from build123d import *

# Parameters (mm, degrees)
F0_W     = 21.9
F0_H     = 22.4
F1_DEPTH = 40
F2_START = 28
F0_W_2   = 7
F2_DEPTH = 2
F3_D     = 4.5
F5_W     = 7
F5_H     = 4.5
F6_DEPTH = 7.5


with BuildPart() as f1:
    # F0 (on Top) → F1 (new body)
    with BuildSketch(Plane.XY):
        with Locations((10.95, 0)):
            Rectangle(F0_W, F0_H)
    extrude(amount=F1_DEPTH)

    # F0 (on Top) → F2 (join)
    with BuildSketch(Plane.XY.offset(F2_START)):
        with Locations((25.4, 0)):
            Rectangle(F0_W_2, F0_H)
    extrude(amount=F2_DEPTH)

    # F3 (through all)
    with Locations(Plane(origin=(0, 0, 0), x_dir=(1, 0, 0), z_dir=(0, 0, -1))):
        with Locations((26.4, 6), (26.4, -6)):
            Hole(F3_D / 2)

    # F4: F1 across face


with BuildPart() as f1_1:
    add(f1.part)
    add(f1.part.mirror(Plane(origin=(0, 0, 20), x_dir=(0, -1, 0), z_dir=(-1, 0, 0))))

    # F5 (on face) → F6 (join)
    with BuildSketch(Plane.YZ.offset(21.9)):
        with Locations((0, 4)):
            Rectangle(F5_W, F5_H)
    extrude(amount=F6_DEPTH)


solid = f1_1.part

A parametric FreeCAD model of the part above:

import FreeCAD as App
import Part
import Sketcher

V = App.Vector
Q = App.Units.Quantity


def add_polygon(sketch, points):
    """Adds a closed chain of lines whose ends are joined by coincident constraints."""
    first, n = sketch.GeometryCount, len(points)
    for a, b in zip(points, points[1:] + points[:1]):
        sketch.addGeometry(Part.LineSegment(App.Vector(*a, 0), App.Vector(*b, 0)), False)
    for i in range(n):
        sketch.addConstraint(Sketcher.Constraint("Coincident", first + i, 2, first + (i + 1) % n, 1))

doc = App.newDocument("Part")
params = doc.addObject("Spreadsheet::Sheet", "Params")
for row, (alias, value) in enumerate([
    ("sketch1_width", "21.9 mm"),
    ("sketch1_height", "22.4 mm"),
    ("pad1_length", "40 mm"),
    ("sketch2_width", "7 mm"),
    ("sketch2_height", "22.4 mm"),
    ("pad2_length", "2 mm"),
    ("sketch3_diameter", "4.5 mm"),
    ("hole_diameter", "4.5 mm"),
    ("sketch4_width", "7 mm"),
    ("sketch4_height", "4.5 mm"),
    ("pad3_length", "7.5 mm"),
], start=1):
    params.set(f"A{row}", alias)
    params.set(f"B{row}", "=" + value)
    params.setAlias(f"B{row}", alias)

body = doc.addObject("PartDesign::Body", "Body")

# Sketch on XY plane
sketch1 = doc.addObject("Sketcher::SketchObject", "Sketch")
body.addObject(sketch1)
sketch1.AttachmentSupport = (doc.XY_Plane, [""])
sketch1.MapMode = "FlatFace"
add_polygon(sketch1, [(0, 11), (0, -11), (22, -11), (22, 11)])  # lines 0-3
sketch1.addConstraint(Sketcher.Constraint("Vertical", 0))
sketch1.addConstraint(Sketcher.Constraint("Horizontal", 1))
sketch1.addConstraint(Sketcher.Constraint("Vertical", 2))
sketch1.addConstraint(Sketcher.Constraint("Horizontal", 3))
sketch1.addConstraint(Sketcher.Constraint("Symmetric", 0, 2, 3, 2, -1, 1))
sketch1.addConstraint(Sketcher.Constraint("DistanceX", 1, 1, 1, 2, Q("21.9 mm")))
sketch1.addConstraint(Sketcher.Constraint("DistanceY", 0, 2, 0, 1, Q("22.4 mm")))
sketch1.setExpression("Constraints[9]", "Params.sketch1_width")
sketch1.setExpression("Constraints[10]", "Params.sketch1_height")
pad1 = doc.addObject("PartDesign::Pad", "Pad")
body.addObject(pad1)
pad1.Profile = sketch1
pad1.setExpression("Length", "Params.pad1_length")

# Sketch on XY plane
sketch2 = doc.addObject("Sketcher::SketchObject", "Sketch001")
body.addObject(sketch2)
sketch2.AttachmentSupport = (doc.XY_Plane, [""])
sketch2.MapMode = "FlatFace"
sketch2.AttachmentOffset = App.Placement(V(0, 0, 28), App.Rotation())
add_polygon(sketch2, [(22, 11), (22, -11), (29, -11), (29, 11)])  # lines 0-3
sketch2.addConstraint(Sketcher.Constraint("Vertical", 0))
sketch2.addConstraint(Sketcher.Constraint("Horizontal", 1))
sketch2.addConstraint(Sketcher.Constraint("Vertical", 2))
sketch2.addConstraint(Sketcher.Constraint("Horizontal", 3))
sketch2.addConstraint(Sketcher.Constraint("DistanceX", 1, 1, 1, 2, Q("7 mm")))
sketch2.addConstraint(Sketcher.Constraint("DistanceY", 0, 2, 0, 1, Q("22.4 mm")))
sketch2.addConstraint(Sketcher.Constraint("DistanceX", -1, 1, 0, 2, Q("21.9 mm")))
sketch2.addConstraint(Sketcher.Constraint("DistanceY", 0, 2, -1, 1, Q("11.2 mm")))
sketch2.setExpression("Constraints[8]", "Params.sketch2_width")
sketch2.setExpression("Constraints[9]", "Params.sketch2_height")
pad2 = doc.addObject("PartDesign::Pad", "Pad001")
body.addObject(pad2)
pad2.Profile = sketch2
pad2.setExpression("Length", "Params.pad2_length")

# Sketch on XY plane
sketch3 = doc.addObject("Sketcher::SketchObject", "Sketch002")
body.addObject(sketch3)
sketch3.AttachmentSupport = (doc.XY_Plane, [""])
sketch3.MapMode = "FlatFace"
sketch3.addGeometry(Part.Circle(V(26.4, -6, 0), V(0, 0, 1), 2.2), False)
sketch3.addGeometry(Part.Circle(V(26.4, 6, 0), V(0, 0, 1), 2.2), False)
sketch3.addConstraint(Sketcher.Constraint("Equal", 0, 1))
sketch3.addConstraint(Sketcher.Constraint("Symmetric", 0, 3, 1, 3, -1))
sketch3.addConstraint(Sketcher.Constraint("Diameter", 0, Q("4.5 mm")))
sketch3.addConstraint(Sketcher.Constraint("DistanceY", 0, 3, -1, 1, Q("6 mm")))
sketch3.addConstraint(Sketcher.Constraint("DistanceX", -1, 1, 0, 3, Q("26.4 mm")))
sketch3.setExpression("Constraints[2]", "Params.sketch3_diameter")
doc.recompute()
hole = doc.addObject("PartDesign::Hole", "Hole")
body.addObject(hole)
hole.Profile = sketch3
hole.ThreadType = "None"
hole.setExpression("Diameter", "Params.hole_diameter")
hole.DepthType = "ThroughAll"
hole.Reversed = True
body2 = doc.addObject("PartDesign::Body", "Body001")
doc.recompute()

body2.BaseFeature = body
doc.recompute()

mirroring = doc.addObject("Part::Mirroring", "Mirroring")
mirroring.Source = body
mirroring.Base = V(0, 0, 20)
mirroring.Normal = V(-1, 0, 0)
body3 = doc.addObject("PartDesign::Body", "Body002")
body3.BaseFeature = mirroring
boolean = doc.addObject("PartDesign::Boolean", "Boolean")
body2.addObject(boolean)
boolean.Type = "Fuse"
boolean.addObjects([body3])
doc.recompute()

# Sketch on YZ plane
sketch4 = doc.addObject("Sketcher::SketchObject", "Sketch003")
body2.addObject(sketch4)
sketch4.AttachmentSupport = (doc.getObject("YZ_Plane001"), [""])
sketch4.MapMode = "FlatFace"
sketch4.AttachmentOffset = App.Placement(V(0, 0, 21.9), App.Rotation())
add_polygon(sketch4, [(-3.5, 6.2), (-3.5, 1.8), (3.5, 1.8), (3.5, 6.2)])  # lines 0-3
sketch4.addConstraint(Sketcher.Constraint("Vertical", 0))
sketch4.addConstraint(Sketcher.Constraint("Horizontal", 1))
sketch4.addConstraint(Sketcher.Constraint("Vertical", 2))
sketch4.addConstraint(Sketcher.Constraint("Horizontal", 3))
sketch4.addConstraint(Sketcher.Constraint("DistanceX", 1, 1, 1, 2, Q("7 mm")))
sketch4.addConstraint(Sketcher.Constraint("DistanceY", 0, 2, 0, 1, Q("4.5 mm")))
sketch4.addConstraint(Sketcher.Constraint("DistanceX", 0, 2, -1, 1, Q("3.5 mm")))
sketch4.addConstraint(Sketcher.Constraint("DistanceY", -1, 1, 0, 2, Q("1.75 mm")))
sketch4.setExpression("Constraints[8]", "Params.sketch4_width")
sketch4.setExpression("Constraints[9]", "Params.sketch4_height")
pad3 = doc.addObject("PartDesign::Pad", "Pad002")
body2.addObject(pad3)
pad3.Profile = sketch4
pad3.setExpression("Length", "Params.pad3_length")
mirroring.Visibility = False

doc.recompute()
